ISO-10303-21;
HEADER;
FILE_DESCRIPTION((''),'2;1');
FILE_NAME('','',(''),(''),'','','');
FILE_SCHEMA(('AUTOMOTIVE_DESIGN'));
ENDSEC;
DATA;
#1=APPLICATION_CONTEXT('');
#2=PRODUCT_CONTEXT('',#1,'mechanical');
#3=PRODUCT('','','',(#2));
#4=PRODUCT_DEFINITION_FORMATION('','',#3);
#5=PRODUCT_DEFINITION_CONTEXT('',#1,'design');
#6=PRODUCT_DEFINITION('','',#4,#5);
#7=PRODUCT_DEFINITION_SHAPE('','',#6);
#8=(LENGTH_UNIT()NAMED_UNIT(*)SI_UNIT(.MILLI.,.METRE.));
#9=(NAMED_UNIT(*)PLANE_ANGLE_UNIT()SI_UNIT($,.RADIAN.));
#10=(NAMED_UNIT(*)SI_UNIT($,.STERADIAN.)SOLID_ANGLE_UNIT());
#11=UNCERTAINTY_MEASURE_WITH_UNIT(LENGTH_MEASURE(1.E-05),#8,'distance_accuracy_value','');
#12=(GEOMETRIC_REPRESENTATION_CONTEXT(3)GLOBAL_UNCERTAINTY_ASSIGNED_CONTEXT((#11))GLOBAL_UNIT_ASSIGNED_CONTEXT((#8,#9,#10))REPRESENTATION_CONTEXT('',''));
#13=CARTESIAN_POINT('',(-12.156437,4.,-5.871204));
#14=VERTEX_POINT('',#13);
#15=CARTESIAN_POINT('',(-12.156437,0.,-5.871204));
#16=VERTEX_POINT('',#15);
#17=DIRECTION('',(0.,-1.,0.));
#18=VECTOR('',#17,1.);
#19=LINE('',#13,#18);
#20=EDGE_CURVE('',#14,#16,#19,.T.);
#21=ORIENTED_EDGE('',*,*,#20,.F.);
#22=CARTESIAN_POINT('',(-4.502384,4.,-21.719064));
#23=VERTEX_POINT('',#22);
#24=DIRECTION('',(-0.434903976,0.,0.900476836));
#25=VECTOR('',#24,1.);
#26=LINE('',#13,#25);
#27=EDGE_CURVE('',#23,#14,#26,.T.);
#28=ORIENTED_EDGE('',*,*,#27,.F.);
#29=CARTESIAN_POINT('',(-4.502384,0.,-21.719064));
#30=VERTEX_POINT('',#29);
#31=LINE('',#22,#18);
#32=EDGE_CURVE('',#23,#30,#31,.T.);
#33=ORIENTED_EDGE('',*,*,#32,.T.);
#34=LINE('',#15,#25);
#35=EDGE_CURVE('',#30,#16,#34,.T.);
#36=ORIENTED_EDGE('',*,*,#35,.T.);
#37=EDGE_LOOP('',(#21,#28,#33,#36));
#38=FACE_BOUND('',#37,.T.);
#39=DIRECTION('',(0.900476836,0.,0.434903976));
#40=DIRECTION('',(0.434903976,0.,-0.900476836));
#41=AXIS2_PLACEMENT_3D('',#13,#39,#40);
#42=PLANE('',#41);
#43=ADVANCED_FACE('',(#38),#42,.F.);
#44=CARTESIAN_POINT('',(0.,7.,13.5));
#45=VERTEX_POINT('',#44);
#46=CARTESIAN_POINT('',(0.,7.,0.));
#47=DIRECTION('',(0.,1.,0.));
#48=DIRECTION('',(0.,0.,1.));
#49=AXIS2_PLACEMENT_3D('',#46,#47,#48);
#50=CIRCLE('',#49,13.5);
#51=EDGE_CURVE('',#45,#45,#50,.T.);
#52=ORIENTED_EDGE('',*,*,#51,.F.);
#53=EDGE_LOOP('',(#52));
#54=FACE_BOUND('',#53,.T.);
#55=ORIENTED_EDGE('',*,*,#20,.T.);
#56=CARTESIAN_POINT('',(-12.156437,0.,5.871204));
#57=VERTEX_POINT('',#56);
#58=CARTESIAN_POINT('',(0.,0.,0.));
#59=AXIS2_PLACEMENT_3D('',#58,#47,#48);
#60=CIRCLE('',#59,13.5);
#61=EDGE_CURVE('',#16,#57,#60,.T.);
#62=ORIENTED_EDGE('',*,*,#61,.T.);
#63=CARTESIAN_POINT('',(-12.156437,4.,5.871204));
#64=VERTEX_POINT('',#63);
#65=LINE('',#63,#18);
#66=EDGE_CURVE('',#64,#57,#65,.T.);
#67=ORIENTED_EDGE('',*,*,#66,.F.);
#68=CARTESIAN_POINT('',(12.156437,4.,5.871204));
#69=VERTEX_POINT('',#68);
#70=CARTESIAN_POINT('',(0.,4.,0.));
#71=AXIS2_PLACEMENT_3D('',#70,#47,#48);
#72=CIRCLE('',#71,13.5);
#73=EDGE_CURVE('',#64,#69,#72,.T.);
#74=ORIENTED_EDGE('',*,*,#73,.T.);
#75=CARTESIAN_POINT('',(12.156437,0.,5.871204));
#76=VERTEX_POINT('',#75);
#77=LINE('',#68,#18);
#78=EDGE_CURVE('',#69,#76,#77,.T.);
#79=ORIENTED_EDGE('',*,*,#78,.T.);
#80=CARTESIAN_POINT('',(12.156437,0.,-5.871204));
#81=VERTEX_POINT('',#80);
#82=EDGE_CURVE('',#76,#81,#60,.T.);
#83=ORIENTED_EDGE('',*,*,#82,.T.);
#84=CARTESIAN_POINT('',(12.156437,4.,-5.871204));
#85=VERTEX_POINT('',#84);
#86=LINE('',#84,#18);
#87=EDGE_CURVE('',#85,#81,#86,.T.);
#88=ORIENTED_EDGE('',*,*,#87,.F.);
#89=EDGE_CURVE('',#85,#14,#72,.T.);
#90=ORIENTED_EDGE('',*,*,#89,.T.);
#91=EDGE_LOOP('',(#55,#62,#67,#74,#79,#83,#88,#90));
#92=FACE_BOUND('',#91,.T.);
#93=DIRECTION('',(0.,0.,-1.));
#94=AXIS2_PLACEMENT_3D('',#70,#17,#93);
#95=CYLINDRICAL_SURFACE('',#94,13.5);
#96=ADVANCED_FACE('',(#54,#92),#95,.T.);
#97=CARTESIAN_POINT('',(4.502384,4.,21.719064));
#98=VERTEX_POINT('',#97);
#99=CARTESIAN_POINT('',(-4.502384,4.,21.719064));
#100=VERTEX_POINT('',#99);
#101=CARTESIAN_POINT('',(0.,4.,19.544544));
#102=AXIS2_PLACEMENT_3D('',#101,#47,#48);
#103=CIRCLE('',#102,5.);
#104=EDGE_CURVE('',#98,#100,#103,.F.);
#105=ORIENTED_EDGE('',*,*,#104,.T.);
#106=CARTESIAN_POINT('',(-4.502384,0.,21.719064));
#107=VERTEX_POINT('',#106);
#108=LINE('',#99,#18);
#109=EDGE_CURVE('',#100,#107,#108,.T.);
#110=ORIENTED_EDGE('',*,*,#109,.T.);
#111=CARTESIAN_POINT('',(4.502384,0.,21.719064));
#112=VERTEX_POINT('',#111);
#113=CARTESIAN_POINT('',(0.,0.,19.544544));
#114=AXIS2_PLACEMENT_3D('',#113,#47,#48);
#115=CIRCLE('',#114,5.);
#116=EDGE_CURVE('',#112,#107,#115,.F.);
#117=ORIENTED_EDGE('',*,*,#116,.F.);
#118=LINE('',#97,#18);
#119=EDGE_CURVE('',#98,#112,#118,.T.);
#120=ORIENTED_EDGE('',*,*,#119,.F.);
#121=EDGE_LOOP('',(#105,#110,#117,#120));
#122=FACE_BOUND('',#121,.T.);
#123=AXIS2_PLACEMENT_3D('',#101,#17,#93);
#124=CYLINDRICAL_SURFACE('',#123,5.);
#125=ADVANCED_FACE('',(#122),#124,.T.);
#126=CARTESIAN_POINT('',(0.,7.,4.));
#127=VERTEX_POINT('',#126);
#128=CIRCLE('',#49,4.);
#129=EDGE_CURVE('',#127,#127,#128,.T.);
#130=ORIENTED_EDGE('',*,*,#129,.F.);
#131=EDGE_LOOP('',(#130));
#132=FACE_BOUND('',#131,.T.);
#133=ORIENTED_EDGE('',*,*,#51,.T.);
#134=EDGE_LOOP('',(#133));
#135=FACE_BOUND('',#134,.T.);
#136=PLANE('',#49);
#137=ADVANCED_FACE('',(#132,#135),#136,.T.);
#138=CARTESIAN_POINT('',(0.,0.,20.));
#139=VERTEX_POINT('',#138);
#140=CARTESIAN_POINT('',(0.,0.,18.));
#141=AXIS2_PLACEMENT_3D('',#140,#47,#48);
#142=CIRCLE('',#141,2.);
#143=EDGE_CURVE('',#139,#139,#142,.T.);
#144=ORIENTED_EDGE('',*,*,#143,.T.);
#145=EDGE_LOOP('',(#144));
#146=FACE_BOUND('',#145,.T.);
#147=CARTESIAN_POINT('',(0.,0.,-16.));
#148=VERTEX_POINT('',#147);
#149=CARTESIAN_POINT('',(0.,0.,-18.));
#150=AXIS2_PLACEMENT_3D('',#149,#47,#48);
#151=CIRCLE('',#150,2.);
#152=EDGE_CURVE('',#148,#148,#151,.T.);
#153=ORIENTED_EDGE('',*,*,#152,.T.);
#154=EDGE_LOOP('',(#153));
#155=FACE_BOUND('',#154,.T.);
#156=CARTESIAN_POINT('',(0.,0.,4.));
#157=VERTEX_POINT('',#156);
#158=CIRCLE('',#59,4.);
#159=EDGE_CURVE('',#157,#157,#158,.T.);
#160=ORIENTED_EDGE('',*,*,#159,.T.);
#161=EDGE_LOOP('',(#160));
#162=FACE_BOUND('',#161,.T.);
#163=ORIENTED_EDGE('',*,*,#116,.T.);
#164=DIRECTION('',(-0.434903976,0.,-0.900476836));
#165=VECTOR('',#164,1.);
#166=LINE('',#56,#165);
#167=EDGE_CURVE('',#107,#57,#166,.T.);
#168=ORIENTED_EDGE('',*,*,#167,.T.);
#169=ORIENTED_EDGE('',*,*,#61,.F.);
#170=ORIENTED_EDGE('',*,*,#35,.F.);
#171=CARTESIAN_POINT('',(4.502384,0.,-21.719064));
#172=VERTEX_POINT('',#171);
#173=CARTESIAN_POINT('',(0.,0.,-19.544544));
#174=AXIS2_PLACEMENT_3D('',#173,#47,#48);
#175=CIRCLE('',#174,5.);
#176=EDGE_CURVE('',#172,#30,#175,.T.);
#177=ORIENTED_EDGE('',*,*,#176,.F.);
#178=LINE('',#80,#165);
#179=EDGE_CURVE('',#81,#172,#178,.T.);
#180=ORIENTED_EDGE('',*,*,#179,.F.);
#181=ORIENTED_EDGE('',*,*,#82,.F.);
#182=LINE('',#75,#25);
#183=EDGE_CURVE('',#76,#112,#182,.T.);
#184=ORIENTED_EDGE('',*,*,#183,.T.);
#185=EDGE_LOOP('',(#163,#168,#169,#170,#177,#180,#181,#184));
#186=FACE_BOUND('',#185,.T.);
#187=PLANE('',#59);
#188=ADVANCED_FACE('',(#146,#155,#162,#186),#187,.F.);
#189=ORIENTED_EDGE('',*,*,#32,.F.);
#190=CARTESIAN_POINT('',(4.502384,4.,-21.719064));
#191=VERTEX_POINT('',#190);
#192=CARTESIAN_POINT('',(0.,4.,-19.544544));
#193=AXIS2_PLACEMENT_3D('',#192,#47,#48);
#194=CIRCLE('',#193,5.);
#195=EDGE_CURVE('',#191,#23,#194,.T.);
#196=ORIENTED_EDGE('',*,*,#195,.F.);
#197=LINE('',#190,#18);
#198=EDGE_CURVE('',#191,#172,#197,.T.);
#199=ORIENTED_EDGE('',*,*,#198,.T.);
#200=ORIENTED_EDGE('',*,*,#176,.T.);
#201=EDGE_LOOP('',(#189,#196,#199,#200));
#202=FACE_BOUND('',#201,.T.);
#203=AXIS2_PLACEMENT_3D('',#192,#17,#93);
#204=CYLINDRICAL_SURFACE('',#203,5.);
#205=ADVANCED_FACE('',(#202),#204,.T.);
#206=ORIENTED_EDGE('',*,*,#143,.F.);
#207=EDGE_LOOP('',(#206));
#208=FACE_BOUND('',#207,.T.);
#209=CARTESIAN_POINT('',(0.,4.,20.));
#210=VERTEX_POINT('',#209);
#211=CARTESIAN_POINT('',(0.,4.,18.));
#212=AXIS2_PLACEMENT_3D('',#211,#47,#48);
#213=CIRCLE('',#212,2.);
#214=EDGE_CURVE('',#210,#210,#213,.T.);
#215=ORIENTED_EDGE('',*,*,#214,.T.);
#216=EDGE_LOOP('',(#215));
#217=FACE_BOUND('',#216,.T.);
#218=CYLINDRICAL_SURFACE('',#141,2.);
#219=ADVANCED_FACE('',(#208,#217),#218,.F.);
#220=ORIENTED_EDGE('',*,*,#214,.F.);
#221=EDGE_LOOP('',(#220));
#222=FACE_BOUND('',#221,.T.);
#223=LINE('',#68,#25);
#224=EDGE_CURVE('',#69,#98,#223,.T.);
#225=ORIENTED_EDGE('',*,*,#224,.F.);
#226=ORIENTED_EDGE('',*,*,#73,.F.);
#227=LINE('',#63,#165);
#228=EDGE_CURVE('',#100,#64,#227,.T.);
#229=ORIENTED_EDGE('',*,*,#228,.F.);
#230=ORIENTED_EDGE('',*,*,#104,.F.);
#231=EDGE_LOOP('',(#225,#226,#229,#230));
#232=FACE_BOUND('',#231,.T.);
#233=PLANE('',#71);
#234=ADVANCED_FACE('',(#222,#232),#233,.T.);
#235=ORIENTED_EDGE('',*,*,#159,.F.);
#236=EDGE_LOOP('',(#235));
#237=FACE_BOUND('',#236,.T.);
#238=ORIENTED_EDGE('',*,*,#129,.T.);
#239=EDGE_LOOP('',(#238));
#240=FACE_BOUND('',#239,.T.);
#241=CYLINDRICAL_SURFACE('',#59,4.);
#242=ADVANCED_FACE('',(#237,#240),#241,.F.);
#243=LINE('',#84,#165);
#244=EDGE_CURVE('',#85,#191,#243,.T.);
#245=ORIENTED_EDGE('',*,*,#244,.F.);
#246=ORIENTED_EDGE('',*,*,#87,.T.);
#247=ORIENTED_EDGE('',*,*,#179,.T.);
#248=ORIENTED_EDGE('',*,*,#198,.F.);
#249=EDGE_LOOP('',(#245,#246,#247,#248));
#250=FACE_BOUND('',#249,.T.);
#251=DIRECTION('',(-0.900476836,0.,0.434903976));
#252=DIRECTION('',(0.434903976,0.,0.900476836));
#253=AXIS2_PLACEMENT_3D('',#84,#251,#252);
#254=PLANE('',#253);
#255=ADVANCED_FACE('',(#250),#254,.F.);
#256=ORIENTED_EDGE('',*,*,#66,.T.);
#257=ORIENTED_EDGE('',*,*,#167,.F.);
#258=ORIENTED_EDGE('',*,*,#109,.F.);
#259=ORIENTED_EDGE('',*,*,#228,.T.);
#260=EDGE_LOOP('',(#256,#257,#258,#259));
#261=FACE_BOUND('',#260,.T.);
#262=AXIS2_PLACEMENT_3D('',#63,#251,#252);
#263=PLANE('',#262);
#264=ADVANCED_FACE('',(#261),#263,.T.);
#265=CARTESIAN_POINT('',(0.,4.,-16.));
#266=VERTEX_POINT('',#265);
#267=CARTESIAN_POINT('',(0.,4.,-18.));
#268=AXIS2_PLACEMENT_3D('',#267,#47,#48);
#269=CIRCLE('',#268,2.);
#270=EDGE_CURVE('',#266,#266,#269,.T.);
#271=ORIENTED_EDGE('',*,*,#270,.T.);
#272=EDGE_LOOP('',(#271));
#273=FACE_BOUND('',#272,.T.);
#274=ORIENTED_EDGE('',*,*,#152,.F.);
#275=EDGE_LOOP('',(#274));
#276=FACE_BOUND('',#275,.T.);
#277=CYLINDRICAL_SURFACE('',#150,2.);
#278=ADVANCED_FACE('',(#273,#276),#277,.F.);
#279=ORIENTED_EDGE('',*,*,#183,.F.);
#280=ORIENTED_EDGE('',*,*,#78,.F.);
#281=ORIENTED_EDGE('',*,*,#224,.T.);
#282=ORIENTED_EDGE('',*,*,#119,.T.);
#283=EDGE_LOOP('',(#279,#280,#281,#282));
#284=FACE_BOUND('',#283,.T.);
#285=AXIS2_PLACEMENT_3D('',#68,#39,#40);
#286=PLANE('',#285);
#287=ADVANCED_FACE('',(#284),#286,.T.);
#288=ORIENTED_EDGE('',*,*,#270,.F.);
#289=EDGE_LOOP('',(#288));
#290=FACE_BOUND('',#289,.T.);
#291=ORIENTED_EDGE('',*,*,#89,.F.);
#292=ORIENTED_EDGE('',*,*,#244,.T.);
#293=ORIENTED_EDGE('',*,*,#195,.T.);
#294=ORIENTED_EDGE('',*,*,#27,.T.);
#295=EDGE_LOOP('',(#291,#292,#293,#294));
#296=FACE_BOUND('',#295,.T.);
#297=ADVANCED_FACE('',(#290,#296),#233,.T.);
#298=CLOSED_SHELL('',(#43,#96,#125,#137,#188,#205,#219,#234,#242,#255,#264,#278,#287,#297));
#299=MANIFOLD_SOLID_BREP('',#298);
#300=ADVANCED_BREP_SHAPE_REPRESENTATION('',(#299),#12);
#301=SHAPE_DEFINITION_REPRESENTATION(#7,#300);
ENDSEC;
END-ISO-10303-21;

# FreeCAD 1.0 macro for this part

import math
import FreeCAD as App
import Part
import Sketcher
from FreeCAD import Vector
Q = App.Units.Quantity

doc = App.newDocument("Part")
params = doc.addObject("Spreadsheet::Sheet", "Params")
for row, (alias, value) in enumerate([
    ("sketch1_radius", "5 mm"),
    ("sketch1_radius2", "13.5 mm"),
    ("pad1_length", "4 mm"),
    ("sketch2_diameter", "4 mm"),
    ("sketch3_diameter", "27 mm"),
    ("pad2_length", "3 mm"),
    ("sketch4_diameter", "8 mm"),
], start=1):
    params.set(f"A{row}", alias)
    params.set(f"B{row}", "=" + value)
    params.setAlias(f"B{row}", alias)

body = doc.addObject("PartDesign::Body", "Body")

sketch1 = body.newObject("Sketcher::SketchObject", "Sketch")
sketch1.AttachmentSupport = (doc.getObject("XZ_Plane"), [""])
sketch1.MapMode = "FlatFace"
sketch1.addGeometry([
    Part.ArcOfCircle(Part.Circle(Vector(0, 0, 0), Vector(0, 0, 1), 13.5), math.radians(180), math.radians(205.779184)),
    Part.ArcOfCircle(Part.Circle(Vector(0, 0, 0), Vector(0, 0, 1), 13.5), math.radians(154.220816), math.radians(180)),
    Part.LineSegment(Vector(-12.156437, 5.871204, 0), Vector(-4.502384, 21.719064, 0)),
    Part.ArcOfCircle(Part.Circle(Vector(0, 19.544544, 0), Vector(0, 0, 1), 5), math.radians(25.779184), math.radians(154.220816)),
    Part.LineSegment(Vector(4.502384, 21.719064, 0), Vector(12.156437, 5.871204, 0)),
    Part.ArcOfCircle(Part.Circle(Vector(0, 0, 0), Vector(0, 0, 1), 13.5), math.radians(0), math.radians(25.779184)),
    Part.ArcOfCircle(Part.Circle(Vector(0, 0, 0), Vector(0, 0, 1), 13.5), math.radians(-25.779184), math.radians(0)),
    Part.LineSegment(Vector(12.156437, -5.871204, 0), Vector(4.502384, -21.719064, 0)),
    Part.ArcOfCircle(Part.Circle(Vector(0, -19.544544, 0), Vector(0, 0, 1), 5), math.radians(-154.220816), math.radians(-25.779184)),
    Part.LineSegment(Vector(-4.502384, -21.719064, 0), Vector(-12.156437, -5.871204, 0)),
], False)
sketch1.addConstraint([
    Sketcher.Constraint("Tangent", 0, 1, 1, 2),
    Sketcher.Constraint("Tangent", 1, 1, 2, 1),
    Sketcher.Constraint("Tangent", 2, 2, 3, 2),
    Sketcher.Constraint("Tangent", 3, 1, 4, 1),
    Sketcher.Constraint("Tangent", 4, 2, 5, 2),
    Sketcher.Constraint("Tangent", 5, 1, 6, 2),
    Sketcher.Constraint("Tangent", 6, 1, 7, 1),
    Sketcher.Constraint("Tangent", 7, 2, 8, 2),
    Sketcher.Constraint("Tangent", 8, 1, 9, 1),
    Sketcher.Constraint("Tangent", 9, 2, 0, 2),
    Sketcher.Constraint("Coincident", 0, 3, -1, 1),
    Sketcher.Constraint("Coincident", 5, 3, -1, 1),
    Sketcher.Constraint("Equal", 0, 1),
    Sketcher.Constraint("Equal", 1, 5),
    Sketcher.Constraint("Equal", 5, 6),
    Sketcher.Constraint("Equal", 3, 8),
    Sketcher.Constraint("Symmetric", 3, 3, 8, 3, -1, 1),
    Sketcher.Constraint("PointOnObject", 3, 3, -2),
    Sketcher.Constraint("PointOnObject", 0, 1, -1),
    Sketcher.Constraint("PointOnObject", 5, 1, -1),
    Sketcher.Constraint("Radius", 3, Q("5 mm")),
    Sketcher.Constraint("Radius", 0, Q("13.5 mm")),
    Sketcher.Constraint("Distance", 2, Q("17.599409 mm")),
])
sketch1.setExpression("Constraints[20]", "Params.sketch1_radius")
sketch1.setExpression("Constraints[21]", "Params.sketch1_radius2")
pad1 = body.newObject("PartDesign::Pad", "Pad")
pad1.Profile = sketch1
pad1.setExpression("Length", "Params.pad1_length")
pad1.Reversed = True

sketch2 = body.newObject("Sketcher::SketchObject", "Sketch001")
sketch2.AttachmentSupport = (doc.getObject("XZ_Plane"), [""])
sketch2.MapMode = "FlatFace"
sketch2.AttachmentOffset = App.Placement(Vector(0, 0, -4), App.Rotation())
sketch2.addGeometry([
    Part.Circle(Vector(0, 18, 0), Vector(0, 0, 1), 2),
    Part.Circle(Vector(0, -18, 0), Vector(0, 0, 1), 2),
], False)
sketch2.addConstraint([
    Sketcher.Constraint("Equal", 0, 1),
    Sketcher.Constraint("Symmetric", 0, 3, 1, 3, -1, 1),
    Sketcher.Constraint("PointOnObject", 0, 3, -2),
    Sketcher.Constraint("Diameter", 0, Q("4 mm")),
    Sketcher.Constraint("DistanceY", -1, 1, 0, 3, Q("18 mm")),
])
sketch2.setExpression("Constraints[3]", "Params.sketch2_diameter")
pocket1 = body.newObject("PartDesign::Pocket", "Pocket")
pocket1.Profile = sketch2
pocket1.Type = "ThroughAll"
pocket1.Reversed = True

sketch3 = body.newObject("Sketcher::SketchObject", "Sketch002")
sketch3.AttachmentSupport = (doc.getObject("XZ_Plane"), [""])
sketch3.MapMode = "FlatFace"
sketch3.AttachmentOffset = App.Placement(Vector(0, 0, -4), App.Rotation())
sketch3.addGeometry(Part.Circle(Vector(0, 0, 0), Vector(0, 0, 1), 13.5), False)
sketch3.addConstraint([
    Sketcher.Constraint("Coincident", 0, 3, -1, 1),
    Sketcher.Constraint("Diameter", 0, Q("27 mm")),
])
sketch3.setExpression("Constraints[1]", "Params.sketch3_diameter")
pad2 = body.newObject("PartDesign::Pad", "Pad001")
pad2.Profile = sketch3
pad2.setExpression("Length", "Params.pad2_length")
pad2.Reversed = True

sketch4 = body.newObject("Sketcher::SketchObject", "Sketch003")
sketch4.AttachmentSupport = (doc.getObject("XZ_Plane"), [""])
sketch4.MapMode = "FlatFace"
sketch4.AttachmentOffset = App.Placement(Vector(0, 0, -7), App.Rotation())
sketch4.addGeometry(Part.Circle(Vector(0, 0, 0), Vector(0, 0, 1), 4), False)
sketch4.addConstraint([
    Sketcher.Constraint("Coincident", 0, 3, -1, 1),
    Sketcher.Constraint("Diameter", 0, Q("8 mm")),
])
sketch4.setExpression("Constraints[1]", "Params.sketch4_diameter")
pocket2 = body.newObject("PartDesign::Pocket", "Pocket001")
pocket2.Profile = sketch4
pocket2.Type = "ThroughAll"
pocket2.Reversed = True

doc.recompute()
